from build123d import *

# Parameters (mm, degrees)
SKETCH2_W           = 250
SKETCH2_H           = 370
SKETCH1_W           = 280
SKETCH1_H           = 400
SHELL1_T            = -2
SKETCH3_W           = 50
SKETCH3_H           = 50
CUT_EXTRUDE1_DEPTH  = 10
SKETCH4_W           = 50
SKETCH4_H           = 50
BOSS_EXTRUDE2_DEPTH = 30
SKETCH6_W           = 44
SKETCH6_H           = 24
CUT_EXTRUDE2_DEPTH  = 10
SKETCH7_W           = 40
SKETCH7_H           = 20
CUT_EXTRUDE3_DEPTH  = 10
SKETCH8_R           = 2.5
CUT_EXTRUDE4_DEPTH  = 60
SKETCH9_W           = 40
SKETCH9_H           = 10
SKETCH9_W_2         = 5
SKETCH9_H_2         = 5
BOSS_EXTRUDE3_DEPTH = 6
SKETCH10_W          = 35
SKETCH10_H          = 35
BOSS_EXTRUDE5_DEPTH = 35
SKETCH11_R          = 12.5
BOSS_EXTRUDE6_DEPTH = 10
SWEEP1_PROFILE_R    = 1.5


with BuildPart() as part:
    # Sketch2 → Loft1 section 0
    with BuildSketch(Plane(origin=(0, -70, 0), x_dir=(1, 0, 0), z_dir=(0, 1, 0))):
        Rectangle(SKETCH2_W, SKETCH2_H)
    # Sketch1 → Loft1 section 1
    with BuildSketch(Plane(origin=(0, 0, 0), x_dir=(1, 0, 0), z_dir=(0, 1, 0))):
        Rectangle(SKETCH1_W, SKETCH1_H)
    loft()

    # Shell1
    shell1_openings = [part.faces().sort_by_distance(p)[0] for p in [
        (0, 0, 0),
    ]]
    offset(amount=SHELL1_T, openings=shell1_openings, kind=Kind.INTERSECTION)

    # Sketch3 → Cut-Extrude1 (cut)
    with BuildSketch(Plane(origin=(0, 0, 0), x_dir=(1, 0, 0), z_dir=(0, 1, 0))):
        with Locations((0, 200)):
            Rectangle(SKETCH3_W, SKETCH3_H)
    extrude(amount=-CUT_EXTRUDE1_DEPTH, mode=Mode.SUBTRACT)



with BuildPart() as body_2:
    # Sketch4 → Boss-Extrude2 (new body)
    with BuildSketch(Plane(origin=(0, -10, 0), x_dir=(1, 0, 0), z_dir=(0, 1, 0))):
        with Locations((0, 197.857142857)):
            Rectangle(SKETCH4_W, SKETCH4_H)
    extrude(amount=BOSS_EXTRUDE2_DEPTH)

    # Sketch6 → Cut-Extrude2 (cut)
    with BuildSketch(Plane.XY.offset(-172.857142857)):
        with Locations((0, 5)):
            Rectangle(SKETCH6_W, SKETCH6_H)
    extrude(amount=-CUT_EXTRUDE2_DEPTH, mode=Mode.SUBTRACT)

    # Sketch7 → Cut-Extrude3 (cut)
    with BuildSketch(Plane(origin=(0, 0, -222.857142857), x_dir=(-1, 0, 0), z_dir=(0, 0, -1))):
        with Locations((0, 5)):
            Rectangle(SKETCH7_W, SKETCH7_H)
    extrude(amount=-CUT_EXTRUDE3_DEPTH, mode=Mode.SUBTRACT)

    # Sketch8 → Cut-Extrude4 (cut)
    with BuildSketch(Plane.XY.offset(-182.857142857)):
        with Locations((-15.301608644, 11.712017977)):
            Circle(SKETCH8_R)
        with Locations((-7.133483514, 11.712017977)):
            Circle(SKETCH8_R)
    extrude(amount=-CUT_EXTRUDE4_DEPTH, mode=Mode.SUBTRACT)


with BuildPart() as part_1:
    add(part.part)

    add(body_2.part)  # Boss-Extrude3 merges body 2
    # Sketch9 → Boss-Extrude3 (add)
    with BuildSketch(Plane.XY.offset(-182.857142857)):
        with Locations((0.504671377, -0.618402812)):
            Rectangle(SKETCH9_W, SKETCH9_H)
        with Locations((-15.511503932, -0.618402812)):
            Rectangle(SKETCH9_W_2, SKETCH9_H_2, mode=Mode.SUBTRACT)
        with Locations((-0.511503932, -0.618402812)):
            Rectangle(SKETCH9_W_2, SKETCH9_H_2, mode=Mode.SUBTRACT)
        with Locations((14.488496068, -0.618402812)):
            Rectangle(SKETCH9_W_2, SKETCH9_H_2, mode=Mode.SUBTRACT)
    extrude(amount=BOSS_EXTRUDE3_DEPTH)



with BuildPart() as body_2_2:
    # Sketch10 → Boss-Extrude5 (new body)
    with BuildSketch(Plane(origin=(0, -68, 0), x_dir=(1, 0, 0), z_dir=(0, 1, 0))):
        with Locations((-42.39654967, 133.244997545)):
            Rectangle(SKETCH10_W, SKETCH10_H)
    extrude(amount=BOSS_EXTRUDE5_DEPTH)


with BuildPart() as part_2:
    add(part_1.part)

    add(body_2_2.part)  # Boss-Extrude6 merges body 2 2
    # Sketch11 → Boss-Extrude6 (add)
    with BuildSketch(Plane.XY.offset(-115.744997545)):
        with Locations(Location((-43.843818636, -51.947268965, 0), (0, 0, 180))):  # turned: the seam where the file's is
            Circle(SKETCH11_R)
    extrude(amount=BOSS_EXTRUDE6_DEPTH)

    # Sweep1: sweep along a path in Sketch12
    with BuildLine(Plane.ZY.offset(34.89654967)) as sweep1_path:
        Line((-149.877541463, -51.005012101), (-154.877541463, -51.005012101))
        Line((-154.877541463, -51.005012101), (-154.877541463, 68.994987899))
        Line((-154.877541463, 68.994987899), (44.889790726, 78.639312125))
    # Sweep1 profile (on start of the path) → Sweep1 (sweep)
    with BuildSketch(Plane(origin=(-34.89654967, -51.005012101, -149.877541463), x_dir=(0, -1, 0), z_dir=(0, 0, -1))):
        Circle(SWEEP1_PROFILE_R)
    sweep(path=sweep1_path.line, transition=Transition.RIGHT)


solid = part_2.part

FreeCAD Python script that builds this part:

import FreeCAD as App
import Part
import Sketcher
Q = App.Units.Quantity


def faces_at(feature, points):
    """Names of the faces that lie closest to the given points."""
    faces = feature.Shape.Faces
    near = lambda p: min(range(len(faces)), key=lambda i: faces[i].distToShape(Part.Vertex(*p))[0])
    return sorted({f"Face{near(p) + 1}" for p in points})


def add_polygon(sketch, points):
    """Adds a closed chain of lines whose ends are joined by coincident constraints."""
    first, n = sketch.GeometryCount, len(points)
    for a, b in zip(points, points[1:] + points[:1]):
        sketch.addGeometry(Part.LineSegment(App.Vector(*a, 0), App.Vector(*b, 0)), False)
    for i in range(n):
        sketch.addConstraint(Sketcher.Constraint("Coincident", first + i, 2, first + (i + 1) % n, 1))

doc = App.newDocument("Part")
body = doc.addObject("PartDesign::Body", "Body")

sketch1 = doc.addObject("Sketcher::SketchObject", "Sketch")
body.addObject(sketch1)
sketch1.AttachmentSupport = (doc.XZ_Plane, [""])
sketch1.MapMode = "FlatFace"
sketch1.AttachmentOffset = App.Placement(App.Vector(0, 0, 70), App.Rotation())
add_polygon(sketch1, [(-125, -185), (-125, 185), (125, 185), (125, -185)])
sketch1.addConstraint(Sketcher.Constraint("Vertical", 0))
sketch1.addConstraint(Sketcher.Constraint("Horizontal", 1))
sketch1.addConstraint(Sketcher.Constraint("Vertical", 2))
sketch1.addConstraint(Sketcher.Constraint("Horizontal", 3))
sketch1.addConstraint(Sketcher.Constraint("Symmetric", 0, 2, 2, 2, -1, 1))
sketch1.addConstraint(Sketcher.Constraint("DistanceX", 1, 1, 1, 2, Q("250 mm")))
sketch1.addConstraint(Sketcher.Constraint("DistanceY", 0, 1, 0, 2, Q("370 mm")))

sketch2 = doc.addObject("Sketcher::SketchObject", "Sketch001")
body.addObject(sketch2)
sketch2.AttachmentSupport = (doc.XZ_Plane, [""])
sketch2.MapMode = "FlatFace"
add_polygon(sketch2, [(-140, -200), (-140, 200), (140, 200), (140, -200)])
sketch2.addConstraint(Sketcher.Constraint("Vertical", 0))
sketch2.addConstraint(Sketcher.Constraint("Horizontal", 1))
sketch2.addConstraint(Sketcher.Constraint("Vertical", 2))
sketch2.addConstraint(Sketcher.Constraint("Horizontal", 3))
sketch2.addConstraint(Sketcher.Constraint("Symmetric", 0, 2, 2, 2, -1, 1))
sketch2.addConstraint(Sketcher.Constraint("DistanceX", 1, 1, 1, 2, Q("280 mm")))
sketch2.addConstraint(Sketcher.Constraint("DistanceY", 0, 1, 0, 2, Q("400 mm")))

additiveloft = doc.addObject("PartDesign::AdditiveLoft", "AdditiveLoft")
body.addObject(additiveloft)
additiveloft.Profile = sketch1
additiveloft.Sections = [sketch2]
doc.recompute()

thickness = doc.addObject("PartDesign::Thickness", "Thickness")
body.addObject(thickness)
thickness.Base = (additiveloft, faces_at(additiveloft, [(0, 0, 0)]))
thickness.Value = 2
thickness.Reversed = True
thickness.Join = "Intersection"

sketch3 = doc.addObject("Sketcher::SketchObject", "Sketch002")
body.addObject(sketch3)
sketch3.AttachmentSupport = (doc.XZ_Plane, [""])
sketch3.MapMode = "FlatFace"
add_polygon(sketch3, [(-25, -225), (-25, -175), (25, -175), (25, -225)])
sketch3.addConstraint(Sketcher.Constraint("Vertical", 0))
sketch3.addConstraint(Sketcher.Constraint("Horizontal", 1))
sketch3.addConstraint(Sketcher.Constraint("Vertical", 2))
sketch3.addConstraint(Sketcher.Constraint("Horizontal", 3))
sketch3.addConstraint(Sketcher.Constraint("Equal", 3, 0))
sketch3.addConstraint(Sketcher.Constraint("DistanceX", 1, 1, 1, 2, Q("50 mm")))
sketch3.addConstraint(Sketcher.Constraint("DistanceX", 0, 2, -1, 1, Q("25 mm")))
sketch3.addConstraint(Sketcher.Constraint("DistanceY", 0, 2, -1, 1, Q("175 mm")))
pocket1 = doc.addObject("PartDesign::Pocket", "Pocket")
body.addObject(pocket1)
pocket1.Profile = sketch3
pocket1.Length = 10
pocket1.Reversed = True
body2 = doc.addObject("PartDesign::Body", "Body001")

sketch4 = doc.addObject("Sketcher::SketchObject", "Sketch003")
body2.addObject(sketch4)
sketch4.AttachmentSupport = (doc.getObject("XZ_Plane001"), [""])
sketch4.MapMode = "FlatFace"
sketch4.AttachmentOffset = App.Placement(App.Vector(0, 0, 10), App.Rotation())
add_polygon(sketch4, [(-25, -223), (-25, -173), (25, -173), (25, -223)])
sketch4.addConstraint(Sketcher.Constraint("Vertical", 0))
sketch4.addConstraint(Sketcher.Constraint("Horizontal", 1))
sketch4.addConstraint(Sketcher.Constraint("Vertical", 2))
sketch4.addConstraint(Sketcher.Constraint("Horizontal", 3))
sketch4.addConstraint(Sketcher.Constraint("Equal", 3, 0))
sketch4.addConstraint(Sketcher.Constraint("DistanceX", 1, 1, 1, 2, Q("50 mm")))
sketch4.addConstraint(Sketcher.Constraint("DistanceX", 0, 2, -1, 1, Q("25 mm")))
sketch4.addConstraint(Sketcher.Constraint("DistanceY", 0, 2, -1, 1, Q("172.857143 mm")))
pad1 = doc.addObject("PartDesign::Pad", "Pad")
body2.addObject(pad1)
pad1.Profile = sketch4
pad1.Length = 30
pad1.Reversed = True

sketch5 = doc.addObject("Sketcher::SketchObject", "Sketch004")
body2.addObject(sketch5)
sketch5.AttachmentSupport = (doc.getObject("XY_Plane001"), [""])
sketch5.MapMode = "FlatFace"
sketch5.AttachmentOffset = App.Placement(App.Vector(0, 0, -172.857143), App.Rotation())
add_polygon(sketch5, [(-22, 17), (-22, -7), (22, -7), (22, 17)])
sketch5.addConstraint(Sketcher.Constraint("Vertical", 0))
sketch5.addConstraint(Sketcher.Constraint("Horizontal", 1))
sketch5.addConstraint(Sketcher.Constraint("Vertical", 2))
sketch5.addConstraint(Sketcher.Constraint("Horizontal", 3))
sketch5.addConstraint(Sketcher.Constraint("DistanceX", 1, 1, 1, 2, Q("44 mm")))
sketch5.addConstraint(Sketcher.Constraint("DistanceY", 0, 2, 0, 1, Q("24 mm")))
sketch5.addConstraint(Sketcher.Constraint("DistanceX", 0, 2, -1, 1, Q("22 mm")))
sketch5.addConstraint(Sketcher.Constraint("DistanceY", 0, 2, -1, 1, Q("7 mm")))
pocket2 = doc.addObject("PartDesign::Pocket", "Pocket001")
body2.addObject(pocket2)
pocket2.Profile = sketch5
pocket2.Length = 10

sketch6 = doc.addObject("Sketcher::SketchObject", "Sketch005")
body2.addObject(sketch6)
sketch6.AttachmentSupport = (doc.getObject("XY_Plane001"), [""])
sketch6.MapMode = "FlatFace"
sketch6.AttachmentOffset = App.Placement(App.Vector(0, 0, -222.857143), App.Rotation())
add_polygon(sketch6, [(20, 15), (20, -5), (-20, -5), (-20, 15)])
sketch6.addConstraint(Sketcher.Constraint("Vertical", 0))
sketch6.addConstraint(Sketcher.Constraint("Horizontal", 1))
sketch6.addConstraint(Sketcher.Constraint("Vertical", 2))
sketch6.addConstraint(Sketcher.Constraint("Horizontal", 3))
sketch6.addConstraint(Sketcher.Constraint("DistanceX", 1, 2, 1, 1, Q("40 mm")))
sketch6.addConstraint(Sketcher.Constraint("DistanceY", 0, 2, 0, 1, Q("20 mm")))
sketch6.addConstraint(Sketcher.Constraint("DistanceX", -1, 1, 0, 2, Q("20 mm")))
sketch6.addConstraint(Sketcher.Constraint("DistanceY", 0, 2, -1, 1, Q("5 mm")))
pocket3 = doc.addObject("PartDesign::Pocket", "Pocket002")
body2.addObject(pocket3)
pocket3.Profile = sketch6
pocket3.Length = 10
pocket3.Reversed = True

sketch7 = doc.addObject("Sketcher::SketchObject", "Sketch006")
body2.addObject(sketch7)
sketch7.AttachmentSupport = (doc.getObject("XY_Plane001"), [""])
sketch7.MapMode = "FlatFace"
sketch7.AttachmentOffset = App.Placement(App.Vector(0, 0, -182.857143), App.Rotation())
sketch7.addGeometry(Part.Circle(App.Vector(-15.3, 11.7, 0), App.Vector(0, 0, 1), 2.5), False)
sketch7.addGeometry(Part.Circle(App.Vector(-7.1, 11.7, 0), App.Vector(0, 0, 1), 2.5), False)
sketch7.addConstraint(Sketcher.Constraint("Equal", 0, 1))
sketch7.addConstraint(Sketcher.Constraint("Horizontal", 0, 3, 1, 3))
sketch7.addConstraint(Sketcher.Constraint("Diameter", 0, Q("5 mm")))
sketch7.addConstraint(Sketcher.Constraint("DistanceX", 0, 3, -1, 1, Q("15.301609 mm")))
sketch7.addConstraint(Sketcher.Constraint("DistanceY", -1, 1, 0, 3, Q("11.712018 mm")))
sketch7.addConstraint(Sketcher.Constraint("DistanceX", 1, 3, -1, 1, Q("7.133484 mm")))
pocket4 = doc.addObject("PartDesign::Pocket", "Pocket003")
body2.addObject(pocket4)
pocket4.Profile = sketch7
pocket4.Length = 60
doc.recompute()

boolean = doc.addObject("PartDesign::Boolean", "Boolean")
body.addObject(boolean)
boolean.Type = "Fuse"
boolean.addObjects([body2])

sketch8 = doc.addObject("Sketcher::SketchObject", "Sketch007")
body.addObject(sketch8)
sketch8.AttachmentSupport = (doc.XY_Plane, [""])
sketch8.MapMode = "FlatFace"
sketch8.AttachmentOffset = App.Placement(App.Vector(0, 0, -182.857143), App.Rotation())
add_polygon(sketch8, [(-19, 4), (-19, -6), (21, -6), (21, 4)])
add_polygon(sketch8, [(-13, -3), (-18, -3), (-18, 2), (-13, 2)])
add_polygon(sketch8, [(2, -3), (-3, -3), (-3, 2), (2, 2)])
add_polygon(sketch8, [(17, -3), (12, -3), (12, 2), (17, 2)])
sketch8.addConstraint(Sketcher.Constraint("Vertical", 0))
sketch8.addConstraint(Sketcher.Constraint("Horizontal", 1))
sketch8.addConstraint(Sketcher.Constraint("Vertical", 2))
sketch8.addConstraint(Sketcher.Constraint("Horizontal", 3))
sketch8.addConstraint(Sketcher.Constraint("Horizontal", 4))
sketch8.addConstraint(Sketcher.Constraint("Vertical", 5))
sketch8.addConstraint(Sketcher.Constraint("Horizontal", 6))
sketch8.addConstraint(Sketcher.Constraint("Vertical", 7))
sketch8.addConstraint(Sketcher.Constraint("Horizontal", 8))
sketch8.addConstraint(Sketcher.Constraint("Vertical", 9))
sketch8.addConstraint(Sketcher.Constraint("Horizontal", 10))
sketch8.addConstraint(Sketcher.Constraint("Vertical", 11))
sketch8.addConstraint(Sketcher.Constraint("Horizontal", 12))
sketch8.addConstraint(Sketcher.Constraint("Vertical", 13))
sketch8.addConstraint(Sketcher.Constraint("Horizontal", 14))
sketch8.addConstraint(Sketcher.Constraint("Vertical", 15))
sketch8.addConstraint(Sketcher.Constraint("Horizontal", 7, 2, 8, 2))
sketch8.addConstraint(Sketcher.Constraint("Horizontal", 6, 2, 9, 2))
sketch8.addConstraint(Sketcher.Constraint("Horizontal", 11, 2, 12, 2))
sketch8.addConstraint(Sketcher.Constraint("Horizontal", 10, 2, 13, 2))
sketch8.addConstraint(Sketcher.Constraint("Equal", 6, 8))
sketch8.addConstraint(Sketcher.Constraint("Equal", 10, 12))
sketch8.addConstraint(Sketcher.Constraint("Equal", 14, 5))
sketch8.addConstraint(Sketcher.Constraint("DistanceX", 1, 1, 1, 2, Q("40 mm")))
sketch8.addConstraint(Sketcher.Constraint("DistanceX", 4, 2, 4, 1, Q("5 mm")))
sketch8.addConstraint(Sketcher.Constraint("DistanceY", 0, 2, 0, 1, Q("10 mm")))
sketch8.addConstraint(Sketcher.Constraint("DistanceX", 7, 2, 8, 2, Q("10 mm")))
sketch8.addConstraint(Sketcher.Constraint("DistanceX", 11, 2, 12, 2, Q("10 mm")))
sketch8.addConstraint(Sketcher.Constraint("DistanceY", 0, 2, 4, 2, Q("2.5 mm")))
sketch8.addConstraint(Sketcher.Constraint("DistanceX", 0, 2, -1, 1, Q("19.495329 mm")))
sketch8.addConstraint(Sketcher.Constraint("DistanceY", 0, 2, -1, 1, Q("5.618403 mm")))
sketch8.addConstraint(Sketcher.Constraint("DistanceX", 4, 2, -1, 1, Q("18.011504 mm")))
pad2 = doc.addObject("PartDesign::Pad", "Pad001")
body.addObject(pad2)
pad2.Profile = sketch8
pad2.Length = 6
body3 = doc.addObject("PartDesign::Body", "Body002")

sketch9 = doc.addObject("Sketcher::SketchObject", "Sketch008")
body3.addObject(sketch9)
sketch9.AttachmentSupport = (doc.getObject("XZ_Plane002"), [""])
sketch9.MapMode = "FlatFace"
sketch9.AttachmentOffset = App.Placement(App.Vector(0, 0, 68), App.Rotation())
add_polygon(sketch9, [(-60, -151), (-60, -116), (-25, -116), (-25, -151)])
sketch9.addConstraint(Sketcher.Constraint("Vertical", 0))
sketch9.addConstraint(Sketcher.Constraint("Horizontal", 1))
sketch9.addConstraint(Sketcher.Constraint("Vertical", 2))
sketch9.addConstraint(Sketcher.Constraint("Horizontal", 3))
sketch9.addConstraint(Sketcher.Constraint("Equal", 3, 0))
sketch9.addConstraint(Sketcher.Constraint("DistanceX", 1, 1, 1, 2, Q("35 mm")))
sketch9.addConstraint(Sketcher.Constraint("DistanceX", 0, 2, -1, 1, Q("59.89655 mm")))
sketch9.addConstraint(Sketcher.Constraint("DistanceY", 0, 2, -1, 1, Q("115.744998 mm")))
pad3 = doc.addObject("PartDesign::Pad", "Pad002")
body3.addObject(pad3)
pad3.Profile = sketch9
pad3.Length = 35
pad3.Reversed = True
doc.recompute()

boolean2 = doc.addObject("PartDesign::Boolean", "Boolean001")
body.addObject(boolean2)
boolean2.Type = "Fuse"
boolean2.addObjects([body3])

sketch10 = doc.addObject("Sketcher::SketchObject", "Sketch009")
body.addObject(sketch10)
sketch10.AttachmentSupport = (doc.XY_Plane, [""])
sketch10.MapMode = "FlatFace"
sketch10.AttachmentOffset = App.Placement(App.Vector(0, 0, -115.744998), App.Rotation())
sketch10.addGeometry(Part.Circle(App.Vector(-44, -52, 0), App.Vector(0, 0, 1), 12), False)
sketch10.addConstraint(Sketcher.Constraint("Diameter", 0, Q("25 mm")))
sketch10.addConstraint(Sketcher.Constraint("DistanceX", 0, 3, -1, 1, Q("43.843819 mm")))
sketch10.addConstraint(Sketcher.Constraint("DistanceY", 0, 3, -1, 1, Q("51.947269 mm")))
pad4 = doc.addObject("PartDesign::Pad", "Pad003")
body.addObject(pad4)
pad4.Profile = sketch10
pad4.Length = 10

sketch11 = doc.addObject("Sketcher::SketchObject", "Sketch010")
body.addObject(sketch11)
sketch11.AttachmentSupport = (doc.XY_Plane, [""])
sketch11.MapMode = "FlatFace"
sketch11.AttachmentOffset = App.Placement(App.Vector(0, 0, -149.877541), App.Rotation())
sketch11.addGeometry(Part.Circle(App.Vector(-34.9, -51, 0), App.Vector(0, 0, 1), 1.5), False)
sketch11.addConstraint(Sketcher.Constraint("Diameter", 0, Q("3 mm")))
sketch11.addConstraint(Sketcher.Constraint("DistanceX", 0, 3, -1, 1, Q("34.89655 mm")))
sketch11.addConstraint(Sketcher.Constraint("DistanceY", 0, 3, -1, 1, Q("51.005012 mm")))

sketch12 = doc.addObject("Sketcher::SketchObject", "Sketch011")
body.addObject(sketch12)
sketch12.AttachmentSupport = (doc.YZ_Plane, [""])
sketch12.MapMode = "FlatFace"
sketch12.AttachmentOffset = App.Placement(App.Vector(0, 0, -34.89655), App.Rotation())
sketch12.addGeometry(Part.LineSegment(App.Vector(-51, -150, 0), App.Vector(-51, -155, 0)), False)
sketch12.addGeometry(Part.LineSegment(App.Vector(-51, -155, 0), App.Vector(69, -155, 0)), False)
sketch12.addGeometry(Part.LineSegment(App.Vector(69, -155, 0), App.Vector(79, 45, 0)), False)
sketch12.addConstraint(Sketcher.Constraint("Coincident", 0, 2, 1, 1))
sketch12.addConstraint(Sketcher.Constraint("Coincident", 1, 2, 2, 1))
sketch12.addConstraint(Sketcher.Constraint("Vertical", 0))
sketch12.addConstraint(Sketcher.Constraint("Horizontal", 1))
sketch12.addConstraint(Sketcher.Constraint("DistanceX", 1, 1, 1, 2, Q("120 mm")))
sketch12.addConstraint(Sketcher.Constraint("DistanceY", 0, 2, 0, 1, Q("5 mm")))
sketch12.addConstraint(Sketcher.Constraint("Distance", 2, Q("200 mm")))
sketch12.addConstraint(Sketcher.Constraint("DistanceY", 0, 1, -1, 1, Q("149.877541 mm")))
sketch12.addConstraint(Sketcher.Constraint("DistanceY", -1, 1, 2, 2, Q("44.889791 mm")))
sketch12.addConstraint(Sketcher.Constraint("DistanceX", 0, 1, -1, 1, Q("51.005012 mm")))
doc.recompute()

additivepipe = doc.addObject("PartDesign::AdditivePipe", "AdditivePipe")
body.addObject(additivepipe)
additivepipe.Profile = sketch11
additivepipe.Spine = (sketch12, ["Edge1", "Edge2", "Edge3"])
additivepipe.Transition = "Right corner"

doc.recompute()
